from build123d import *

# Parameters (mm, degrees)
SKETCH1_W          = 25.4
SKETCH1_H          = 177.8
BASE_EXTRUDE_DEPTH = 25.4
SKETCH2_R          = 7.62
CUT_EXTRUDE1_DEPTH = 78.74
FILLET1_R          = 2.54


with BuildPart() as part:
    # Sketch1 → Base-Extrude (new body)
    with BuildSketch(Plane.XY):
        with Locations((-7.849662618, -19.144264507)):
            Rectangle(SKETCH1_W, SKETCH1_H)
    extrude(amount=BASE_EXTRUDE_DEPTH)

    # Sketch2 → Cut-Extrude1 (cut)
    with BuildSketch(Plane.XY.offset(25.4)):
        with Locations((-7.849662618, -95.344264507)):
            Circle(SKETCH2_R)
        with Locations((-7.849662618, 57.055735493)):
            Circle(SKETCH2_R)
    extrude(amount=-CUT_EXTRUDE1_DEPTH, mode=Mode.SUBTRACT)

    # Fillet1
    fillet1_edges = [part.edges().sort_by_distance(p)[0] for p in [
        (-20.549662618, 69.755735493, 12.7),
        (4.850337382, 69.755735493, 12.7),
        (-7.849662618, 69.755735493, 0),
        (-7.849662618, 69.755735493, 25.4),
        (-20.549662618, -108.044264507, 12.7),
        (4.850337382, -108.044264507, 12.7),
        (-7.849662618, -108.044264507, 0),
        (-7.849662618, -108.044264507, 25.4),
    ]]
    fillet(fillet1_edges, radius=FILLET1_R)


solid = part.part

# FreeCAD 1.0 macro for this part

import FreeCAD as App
import Part
import Sketcher
from FreeCAD import Vector
Q = App.Units.Quantity


def edges_at(feature, points):
    """Names of the edges that pass closest to the given points."""
    edges = feature.Shape.Edges
    near = lambda p: min(range(len(edges)), key=lambda i: edges[i].distToShape(Part.Vertex(*p))[0])
    return sorted({f"Edge{near(p) + 1}" for p in points})


def add_polygon(sketch, points):
    """Adds a closed chain of lines whose ends are joined by coincident constraints."""
    first, n = sketch.GeometryCount, len(points)
    for a, b in zip(points, points[1:] + points[:1]):
        sketch.addGeometry(Part.LineSegment(App.Vector(*a, 0), App.Vector(*b, 0)), False)
    for i in range(n):
        sketch.addConstraint(Sketcher.Constraint("Coincident", first + i, 2, first + (i + 1) % n, 1))

doc = App.newDocument("Part")
body = doc.addObject("PartDesign::Body", "Body")

# Sketch on XY plane
sketch1 = body.newObject("Sketcher::SketchObject", "Sketch")
sketch1.AttachmentSupport = (doc.getObject("XY_Plane"), [""])
sketch1.MapMode = "FlatFace"
add_polygon(sketch1, [(-20.549663, 69.755735), (-20.549663, -108.044265), (4.850337, -108.044265), (4.850337, 69.755735)])  # lines 0-3
sketch1.addConstraint([
    Sketcher.Constraint("Vertical", 0),
    Sketcher.Constraint("Horizontal", 1),
    Sketcher.Constraint("Vertical", 2),
    Sketcher.Constraint("Horizontal", 3),
    Sketcher.Constraint("DistanceX", 1, 1, 1, 2, Q("1 in")),
    Sketcher.Constraint("DistanceY", 0, 2, 0, 1, Q("7 in")),
    Sketcher.Constraint("DistanceX", 0, 2, -1, 1, Q("20.549663 mm")),
    Sketcher.Constraint("DistanceY", 0, 2, -1, 1, Q("108.044265 mm")),
])
pad1 = body.newObject("PartDesign::Pad", "Pad")
pad1.Profile = sketch1
pad1.Length = Q("1 in")

# Sketch on XY plane
sketch2 = body.newObject("Sketcher::SketchObject", "Sketch001")
sketch2.AttachmentSupport = (doc.getObject("XY_Plane"), [""])
sketch2.MapMode = "FlatFace"
sketch2.AttachmentOffset = App.Placement(Vector(0, 0, 1 * 25.4), App.Rotation())
sketch2.addGeometry([
    Part.Circle(Vector(-7.849663, -95.344265, 0), Vector(0, 0, 1), 7.62),
    Part.Circle(Vector(-7.849663, 57.055735, 0), Vector(0, 0, 1), 7.62),
], False)
sketch2.addConstraint([
    Sketcher.Constraint("Equal", 0, 1),
    Sketcher.Constraint("Vertical", 0, 3, 1, 3),
    Sketcher.Constraint("Diameter", 0, Q("0.6 in")),
    Sketcher.Constraint("DistanceY", 0, 3, 1, 3, Q("6 in")),
    Sketcher.Constraint("DistanceX", 0, 3, -1, 1, Q("7.849663 mm")),
    Sketcher.Constraint("DistanceY", 0, 3, -1, 1, Q("95.344265 mm")),
])
pocket1 = body.newObject("PartDesign::Pocket", "Pocket")
pocket1.Profile = sketch2
pocket1.Length = Q("3.1 in")
doc.recompute()

fillet = body.newObject("PartDesign::Fillet", "Fillet")
fillet.Base = (pocket1, edges_at(pocket1, [
    (-20.55, 69.756, 12.7),
    (4.85, 69.756, 12.7),
    (-7.85, 69.756, 0),
    (-7.85, 69.756, 25.4),
    (-20.55, -108.044, 12.7),
    (4.85, -108.044, 12.7),
    (-7.85, -108.044, 0),
    (-7.85, -108.044, 25.4),
]))
fillet.Radius = Q("0.1 in")

doc.recompute()
